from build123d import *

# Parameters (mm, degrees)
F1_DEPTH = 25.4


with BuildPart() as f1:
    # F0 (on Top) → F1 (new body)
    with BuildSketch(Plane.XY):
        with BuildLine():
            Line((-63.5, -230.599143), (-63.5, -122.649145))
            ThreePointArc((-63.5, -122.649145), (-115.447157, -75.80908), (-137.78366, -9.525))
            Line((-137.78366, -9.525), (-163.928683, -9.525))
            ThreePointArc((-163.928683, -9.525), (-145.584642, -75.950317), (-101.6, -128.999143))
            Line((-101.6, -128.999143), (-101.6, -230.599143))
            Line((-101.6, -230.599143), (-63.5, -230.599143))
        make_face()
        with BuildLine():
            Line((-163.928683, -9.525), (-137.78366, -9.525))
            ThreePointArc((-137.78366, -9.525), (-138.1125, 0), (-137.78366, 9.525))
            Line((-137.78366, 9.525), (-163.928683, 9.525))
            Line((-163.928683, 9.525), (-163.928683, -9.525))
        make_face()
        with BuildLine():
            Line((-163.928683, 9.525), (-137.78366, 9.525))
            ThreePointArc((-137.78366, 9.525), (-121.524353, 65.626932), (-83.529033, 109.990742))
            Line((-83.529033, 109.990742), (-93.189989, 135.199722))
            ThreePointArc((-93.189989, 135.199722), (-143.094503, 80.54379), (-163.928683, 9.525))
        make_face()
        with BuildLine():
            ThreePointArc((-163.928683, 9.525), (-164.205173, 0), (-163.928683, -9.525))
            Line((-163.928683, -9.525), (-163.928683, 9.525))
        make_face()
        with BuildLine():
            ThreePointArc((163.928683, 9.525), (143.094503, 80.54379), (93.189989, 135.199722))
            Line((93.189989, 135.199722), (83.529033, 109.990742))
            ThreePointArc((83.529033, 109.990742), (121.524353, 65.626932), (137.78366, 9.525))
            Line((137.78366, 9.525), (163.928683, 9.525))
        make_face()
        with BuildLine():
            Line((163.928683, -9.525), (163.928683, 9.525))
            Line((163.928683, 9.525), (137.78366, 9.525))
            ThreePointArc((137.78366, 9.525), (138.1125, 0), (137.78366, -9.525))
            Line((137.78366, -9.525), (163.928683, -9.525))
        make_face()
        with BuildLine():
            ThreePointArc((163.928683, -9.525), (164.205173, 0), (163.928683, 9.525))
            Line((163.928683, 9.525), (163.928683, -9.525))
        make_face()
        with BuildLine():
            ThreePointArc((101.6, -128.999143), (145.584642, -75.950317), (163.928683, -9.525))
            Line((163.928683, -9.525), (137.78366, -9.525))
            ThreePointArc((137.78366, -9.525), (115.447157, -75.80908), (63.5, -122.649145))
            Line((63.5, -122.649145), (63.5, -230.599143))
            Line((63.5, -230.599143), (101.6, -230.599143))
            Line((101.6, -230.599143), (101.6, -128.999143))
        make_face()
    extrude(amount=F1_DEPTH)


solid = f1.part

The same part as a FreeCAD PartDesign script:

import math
import FreeCAD as App
import Part
import Sketcher
Q = App.Units.Quantity

doc = App.newDocument("Part")
body = doc.addObject("PartDesign::Body", "Body")
body.AllowCompound = True

# Sketch on XY plane
sketch1 = body.newObject("Sketcher::SketchObject", "Sketch")
sketch1.AttachmentSupport = (doc.getObject("XY_Plane"), [""])
sketch1.MapMode = "FlatFace"
sketch1.addGeometry(Part.LineSegment(App.Vector(-63.5, -230.599143, 0), App.Vector(-63.5, -122.649145, 0)), False)
sketch1.addGeometry(Part.ArcOfCircle(Part.Circle(App.Vector(0.000001, 0, 0), App.Vector(0, 0, 1), 138.1125), math.radians(-176.045428), math.radians(-117.372275)), False)
sketch1.addGeometry(Part.ArcOfCircle(Part.Circle(App.Vector(-0.000104, 0, 0), App.Vector(0, 0, 1), 138.112396), math.radians(176.045425), math.radians(183.954575)), False)
sketch1.addGeometry(Part.ArcOfCircle(Part.Circle(App.Vector(0.000002, -0.000001, 0), App.Vector(0, 0, 1), 138.112502), math.radians(127.213719), math.radians(176.045428)), False)
sketch1.addGeometry(Part.LineSegment(App.Vector(-83.529033, 109.990742, 0), App.Vector(-93.189989, 135.199722, 0)), False)
sketch1.addGeometry(Part.ArcOfCircle(Part.Circle(App.Vector(-0.000002, 0.000002, 0), App.Vector(0, 0, 1), 164.20517), math.radians(124.577582), math.radians(176.674595)), False)
sketch1.addGeometry(Part.ArcOfCircle(Part.Circle(App.Vector(-0.00019, 0, 0), App.Vector(0, 0, 1), 164.204983), math.radians(176.67459), math.radians(183.32541)), False)
sketch1.addGeometry(Part.ArcOfCircle(Part.Circle(App.Vector(0.000006, 0.000002, 0), App.Vector(0, 0, 1), 164.205178), math.radians(-176.674594), math.radians(-128.224045)), False)
sketch1.addGeometry(Part.LineSegment(App.Vector(-101.6, -128.999143, 0), App.Vector(-101.6, -230.599143, 0)), False)
sketch1.addGeometry(Part.LineSegment(App.Vector(-101.6, -230.599143, 0), App.Vector(-63.5, -230.599143, 0)), False)
sketch1.addGeometry(Part.ArcOfCircle(Part.Circle(App.Vector(0.000002, 0.000002, 0), App.Vector(0, 0, 1), 164.20517), math.radians(3.325405), math.radians(55.422418)), False)
sketch1.addGeometry(Part.LineSegment(App.Vector(93.189989, 135.199722, 0), App.Vector(83.529033, 109.990742, 0)), False)
sketch1.addGeometry(Part.ArcOfCircle(Part.Circle(App.Vector(-0.000002, -0.000001, 0), App.Vector(0, 0, 1), 138.112502), math.radians(3.954572), math.radians(52.786281)), False)
sketch1.addGeometry(Part.ArcOfCircle(Part.Circle(App.Vector(0.000104, 0, 0), App.Vector(0, 0, 1), 138.112396), math.radians(-3.954575), math.radians(3.954575)), False)
sketch1.addGeometry(Part.ArcOfCircle(Part.Circle(App.Vector(-0.000001, 0, 0), App.Vector(0, 0, 1), 138.1125), math.radians(-62.627725), math.radians(-3.954572)), False)
sketch1.addGeometry(Part.LineSegment(App.Vector(63.5, -122.649145, 0), App.Vector(63.5, -230.599143, 0)), False)
sketch1.addGeometry(Part.LineSegment(App.Vector(63.5, -230.599143, 0), App.Vector(101.6, -230.599143, 0)), False)
sketch1.addGeometry(Part.LineSegment(App.Vector(101.6, -230.599143, 0), App.Vector(101.6, -128.999143, 0)), False)
sketch1.addGeometry(Part.ArcOfCircle(Part.Circle(App.Vector(-0.000006, 0.000002, 0), App.Vector(0, 0, 1), 164.205178), math.radians(-51.775955), math.radians(-3.325406)), False)
sketch1.addGeometry(Part.ArcOfCircle(Part.Circle(App.Vector(0.00019, 0, 0), App.Vector(0, 0, 1), 164.204983), math.radians(-3.32541), math.radians(3.32541)), False)
sketch1.addConstraint(Sketcher.Constraint("Coincident", 0, 2, 1, 2))
sketch1.addConstraint(Sketcher.Constraint("Coincident", 1, 1, 2, 2))
sketch1.addConstraint(Sketcher.Constraint("Coincident", 2, 1, 3, 2))
sketch1.addConstraint(Sketcher.Constraint("Coincident", 3, 1, 4, 1))
sketch1.addConstraint(Sketcher.Constraint("Coincident", 4, 2, 5, 1))
sketch1.addConstraint(Sketcher.Constraint("Coincident", 5, 2, 6, 1))
sketch1.addConstraint(Sketcher.Constraint("Coincident", 6, 2, 7, 1))
sketch1.addConstraint(Sketcher.Constraint("Coincident", 7, 2, 8, 1))
sketch1.addConstraint(Sketcher.Constraint("Coincident", 8, 2, 9, 1))
sketch1.addConstraint(Sketcher.Constraint("Coincident", 9, 2, 0, 1))
sketch1.addConstraint(Sketcher.Constraint("Coincident", 10, 2, 11, 1))
sketch1.addConstraint(Sketcher.Constraint("Coincident", 11, 2, 12, 2))
sketch1.addConstraint(Sketcher.Constraint("Coincident", 12, 1, 13, 2))
sketch1.addConstraint(Sketcher.Constraint("Coincident", 13, 1, 14, 2))
sketch1.addConstraint(Sketcher.Constraint("Coincident", 14, 1, 15, 1))
sketch1.addConstraint(Sketcher.Constraint("Coincident", 15, 2, 16, 1))
sketch1.addConstraint(Sketcher.Constraint("Coincident", 16, 2, 17, 1))
sketch1.addConstraint(Sketcher.Constraint("Coincident", 17, 2, 18, 1))
sketch1.addConstraint(Sketcher.Constraint("Coincident", 18, 2, 19, 1))
sketch1.addConstraint(Sketcher.Constraint("Coincident", 19, 2, 10, 1))
sketch1.addConstraint(Sketcher.Constraint("Vertical", 0))
sketch1.addConstraint(Sketcher.Constraint("Vertical", 8))
sketch1.addConstraint(Sketcher.Constraint("Horizontal", 9))
sketch1.addConstraint(Sketcher.Constraint("Vertical", 15))
sketch1.addConstraint(Sketcher.Constraint("Horizontal", 16))
sketch1.addConstraint(Sketcher.Constraint("Vertical", 17))
sketch1.addConstraint(Sketcher.Constraint("Coincident", 1, 3, -1, 1))
sketch1.addConstraint(Sketcher.Constraint("Coincident", 3, 3, -1, 1))
sketch1.addConstraint(Sketcher.Constraint("Coincident", 5, 3, -1, 1))
sketch1.addConstraint(Sketcher.Constraint("Coincident", 7, 3, -1, 1))
sketch1.addConstraint(Sketcher.Constraint("Coincident", 10, 3, -1, 1))
sketch1.addConstraint(Sketcher.Constraint("Coincident", 12, 3, -1, 1))
sketch1.addConstraint(Sketcher.Constraint("Coincident", 14, 3, -1, 1))
sketch1.addConstraint(Sketcher.Constraint("Coincident", 18, 3, -1, 1))
sketch1.addConstraint(Sketcher.Constraint("PointOnObject", 2, 3, -1))
sketch1.addConstraint(Sketcher.Constraint("PointOnObject", 6, 3, -1))
sketch1.addConstraint(Sketcher.Constraint("PointOnObject", 13, 3, -1))
sketch1.addConstraint(Sketcher.Constraint("PointOnObject", 19, 3, -1))
sketch1.addConstraint(Sketcher.Constraint("DistanceY", 8, 2, 8, 1, Q("4 in")))
sketch1.addConstraint(Sketcher.Constraint("DistanceY", 17, 1, 17, 2, Q("4 in")))
sketch1.addConstraint(Sketcher.Constraint("DistanceX", 9, 1, 9, 2, Q("1.5 in")))
sketch1.addConstraint(Sketcher.Constraint("DistanceX", 16, 1, 16, 2, Q("1.5 in")))
sketch1.addConstraint(Sketcher.Constraint("DistanceX", 7, 2, -1, 1, Q("4 in")))
sketch1.addConstraint(Sketcher.Constraint("DistanceX", -1, 1, 16, 2, Q("4 in")))
sketch1.addConstraint(Sketcher.Constraint("Radius", 1, Q("5.4375 in")))
sketch1.addConstraint(Sketcher.Constraint("Radius", 12, Q("5.4375001 in")))
sketch1.addConstraint(Sketcher.Constraint("DistanceY", 15, 2, 7, 2, Q("4 in")))
sketch1.addConstraint(Sketcher.Constraint("DistanceY", 0, 1, 0, 2, Q("4.2499999 in")))
sketch1.addConstraint(Sketcher.Constraint("DistanceY", 1, 1, 2, 1, Q("0.75 in")))
sketch1.addConstraint(Sketcher.Constraint("DistanceY", 1, 1, 5, 2, Q("0.75 in")))
sketch1.addConstraint(Sketcher.Constraint("DistanceY", 6, 2, 5, 2, Q("0.75 in")))
sketch1.addConstraint(Sketcher.Constraint("DistanceY", 13, 1, 12, 1, Q("0.75 in")))
sketch1.addConstraint(Sketcher.Constraint("DistanceY", 18, 2, 12, 1, Q("0.75 in")))
sketch1.addConstraint(Sketcher.Constraint("DistanceY", 18, 2, 19, 2, Q("0.75 in")))
sketch1.addConstraint(Sketcher.Constraint("DistanceY", 1, 1, -1, 1, Q("0.375 in")))
sketch1.addConstraint(Sketcher.Constraint("DistanceY", -1, 1, 12, 1, Q("0.375 in")))
sketch1.addConstraint(Sketcher.Constraint("Radius", 2, Q("138.112396 mm")))
sketch1.addConstraint(Sketcher.Constraint("Radius", 6, Q("164.204983 mm")))
sketch1.addConstraint(Sketcher.Constraint("Radius", 13, Q("138.112396 mm")))
sketch1.addConstraint(Sketcher.Constraint("Radius", 19, Q("164.204983 mm")))
sketch1.addConstraint(Sketcher.Constraint("DistanceX", 4, 2, 6, 3, Q("93.189799 mm")))
sketch1.addConstraint(Sketcher.Constraint("DistanceX", 19, 3, 10, 2, Q("93.189799 mm")))
sketch1.addConstraint(Sketcher.Constraint("Distance", 4, Q("26.996791 mm")))
sketch1.addConstraint(Sketcher.Constraint("Distance", 11, Q("26.996791 mm")))
pad1 = body.newObject("PartDesign::Pad", "Pad")
pad1.Profile = sketch1
pad1.Length = Q("1 in")

doc.recompute()
